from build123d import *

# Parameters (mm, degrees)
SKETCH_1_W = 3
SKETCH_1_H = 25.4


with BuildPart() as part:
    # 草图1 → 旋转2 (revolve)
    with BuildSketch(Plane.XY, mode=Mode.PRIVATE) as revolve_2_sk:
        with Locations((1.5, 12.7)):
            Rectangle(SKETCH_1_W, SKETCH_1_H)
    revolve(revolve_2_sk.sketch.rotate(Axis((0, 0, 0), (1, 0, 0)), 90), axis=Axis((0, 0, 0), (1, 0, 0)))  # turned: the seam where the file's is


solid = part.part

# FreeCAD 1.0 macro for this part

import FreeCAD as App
import Part
import Sketcher
Q = App.Units.Quantity


def add_polygon(sketch, points):
    """Adds a closed chain of lines whose ends are joined by coincident constraints."""
    first, n = sketch.GeometryCount, len(points)
    for a, b in zip(points, points[1:] + points[:1]):
        sketch.addGeometry(Part.LineSegment(App.Vector(*a, 0), App.Vector(*b, 0)), False)
    for i in range(n):
        sketch.addConstraint(Sketcher.Constraint("Coincident", first + i, 2, first + (i + 1) % n, 1))

doc = App.newDocument("Part")
body = doc.addObject("PartDesign::Body", "Body")

sketch1 = body.newObject("Sketcher::SketchObject", "Sketch")
sketch1.AttachmentSupport = (doc.getObject("XY_Plane"), [""])
sketch1.MapMode = "FlatFace"
add_polygon(sketch1, [(0, 25.4), (0, 0), (3, 0), (3, 25.4)])
sketch1.addConstraint(Sketcher.Constraint("Vertical", 0))
sketch1.addConstraint(Sketcher.Constraint("Horizontal", 1))
sketch1.addConstraint(Sketcher.Constraint("Vertical", 2))
sketch1.addConstraint(Sketcher.Constraint("Horizontal", 3))
sketch1.addConstraint(Sketcher.Constraint("Coincident", 0, 2, -1, 1))
sketch1.addConstraint(Sketcher.Constraint("DistanceX", 1, 1, 1, 2, Q("3 mm")))
sketch1.addConstraint(Sketcher.Constraint("DistanceY", 0, 2, 0, 1, Q("25.4 mm")))
revolution = body.newObject("PartDesign::Revolution", "Revolution")
revolution.Profile = sketch1
revolution.ReferenceAxis = (sketch1, ["H_Axis"])
revolution.Angle = 360

doc.recompute()
